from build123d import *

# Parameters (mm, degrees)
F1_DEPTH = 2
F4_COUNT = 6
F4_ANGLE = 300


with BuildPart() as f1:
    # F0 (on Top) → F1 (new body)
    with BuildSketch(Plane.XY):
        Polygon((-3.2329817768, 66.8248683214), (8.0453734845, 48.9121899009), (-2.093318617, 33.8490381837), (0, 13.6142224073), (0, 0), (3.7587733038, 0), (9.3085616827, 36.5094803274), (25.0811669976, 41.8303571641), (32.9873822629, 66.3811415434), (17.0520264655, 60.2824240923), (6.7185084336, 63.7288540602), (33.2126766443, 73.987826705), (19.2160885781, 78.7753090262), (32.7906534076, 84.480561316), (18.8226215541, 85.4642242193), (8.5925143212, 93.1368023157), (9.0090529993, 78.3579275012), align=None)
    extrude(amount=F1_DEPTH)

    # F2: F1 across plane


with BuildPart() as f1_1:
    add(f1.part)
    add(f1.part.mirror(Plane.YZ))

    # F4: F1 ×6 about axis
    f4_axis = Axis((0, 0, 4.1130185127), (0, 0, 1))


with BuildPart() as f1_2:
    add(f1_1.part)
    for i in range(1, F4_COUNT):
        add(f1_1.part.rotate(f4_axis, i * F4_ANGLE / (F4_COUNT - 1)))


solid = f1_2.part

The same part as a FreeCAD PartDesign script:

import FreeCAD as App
import Part
import Sketcher

doc = App.newDocument("Part")
body = doc.addObject("PartDesign::Body", "Body")

# Sketch on XY plane
sketch1 = doc.addObject("Sketcher::SketchObject", "Sketch")
body.addObject(sketch1)
sketch1.AttachmentSupport = (doc.XY_Plane, [""])
sketch1.MapMode = "FlatFace"
sketch1.addGeometry(Part.LineSegment(App.Vector(-3.2, 66.8, 0), App.Vector(8, 48.9, 0)), False)
sketch1.addGeometry(Part.LineSegment(App.Vector(8, 48.9, 0), App.Vector(-2.1, 33.8, 0)), False)
sketch1.addGeometry(Part.LineSegment(App.Vector(-2.1, 33.8, 0), App.Vector(0, 13.6, 0)), False)
sketch1.addGeometry(Part.LineSegment(App.Vector(0, 13.6, 0), App.Vector(0, 0, 0)), False)
sketch1.addGeometry(Part.LineSegment(App.Vector(0, 0, 0), App.Vector(3.8, 0, 0)), False)
sketch1.addGeometry(Part.LineSegment(App.Vector(3.8, 0, 0), App.Vector(9.3, 36.5, 0)), False)
sketch1.addGeometry(Part.LineSegment(App.Vector(9.3, 36.5, 0), App.Vector(25.1, 41.8, 0)), False)
sketch1.addGeometry(Part.LineSegment(App.Vector(25.1, 41.8, 0), App.Vector(33, 66.4, 0)), False)
sketch1.addGeometry(Part.LineSegment(App.Vector(33, 66.4, 0), App.Vector(17.1, 60.3, 0)), False)
sketch1.addGeometry(Part.LineSegment(App.Vector(17.1, 60.3, 0), App.Vector(6.7, 63.7, 0)), False)
sketch1.addGeometry(Part.LineSegment(App.Vector(6.7, 63.7, 0), App.Vector(33.2, 74, 0)), False)
sketch1.addGeometry(Part.LineSegment(App.Vector(33.2, 74, 0), App.Vector(19.2, 78.8, 0)), False)
sketch1.addGeometry(Part.LineSegment(App.Vector(19.2, 78.8, 0), App.Vector(32.8, 84.5, 0)), False)
sketch1.addGeometry(Part.LineSegment(App.Vector(32.8, 84.5, 0), App.Vector(18.8, 85.5, 0)), False)
sketch1.addGeometry(Part.LineSegment(App.Vector(18.8, 85.5, 0), App.Vector(8.6, 93.1, 0)), False)
sketch1.addGeometry(Part.LineSegment(App.Vector(8.6, 93.1, 0), App.Vector(9, 78.4, 0)), False)
sketch1.addGeometry(Part.LineSegment(App.Vector(9, 78.4, 0), App.Vector(-3.2, 66.8, 0)), False)
sketch1.addConstraint(Sketcher.Constraint("Coincident", 0, 2, 1, 1))
sketch1.addConstraint(Sketcher.Constraint("Coincident", 1, 2, 2, 1))
sketch1.addConstraint(Sketcher.Constraint("Coincident", 2, 2, 3, 1))
sketch1.addConstraint(Sketcher.Constraint("Coincident", 3, 2, 4, 1))
sketch1.addConstraint(Sketcher.Constraint("Coincident", 4, 2, 5, 1))
sketch1.addConstraint(Sketcher.Constraint("Coincident", 5, 2, 6, 1))
sketch1.addConstraint(Sketcher.Constraint("Coincident", 6, 2, 7, 1))
sketch1.addConstraint(Sketcher.Constraint("Coincident", 7, 2, 8, 1))
sketch1.addConstraint(Sketcher.Constraint("Coincident", 8, 2, 9, 1))
sketch1.addConstraint(Sketcher.Constraint("Coincident", 9, 2, 10, 1))
sketch1.addConstraint(Sketcher.Constraint("Coincident", 10, 2, 11, 1))
sketch1.addConstraint(Sketcher.Constraint("Coincident", 11, 2, 12, 1))
sketch1.addConstraint(Sketcher.Constraint("Coincident", 12, 2, 13, 1))
sketch1.addConstraint(Sketcher.Constraint("Coincident", 13, 2, 14, 1))
sketch1.addConstraint(Sketcher.Constraint("Coincident", 14, 2, 15, 1))
sketch1.addConstraint(Sketcher.Constraint("Coincident", 15, 2, 16, 1))
sketch1.addConstraint(Sketcher.Constraint("Coincident", 16, 2, 0, 1))
sketch1.addConstraint(Sketcher.Constraint("Vertical", 3))
sketch1.addConstraint(Sketcher.Constraint("Horizontal", 4))
sketch1.addConstraint(Sketcher.Constraint("Coincident", 3, 2, -1, 1))
sketch1.addConstraint(Sketcher.Constraint("DistanceX", 4, 2, 0, 2, 4.2866))
sketch1.addConstraint(Sketcher.Constraint("DistanceX", 1, 2, 7, 2, 35.080701))
sketch1.addConstraint(Sketcher.Constraint("Distance", 5, 36.928882))
sketch1.addConstraint(Sketcher.Constraint("Distance", 8, 17.06253))
sketch1.addConstraint(Sketcher.Constraint("DistanceX", 4, 1, 4, 2, 3.758773))
sketch1.addConstraint(Sketcher.Constraint("DistanceY", 3, 2, 3, 1, 13.614222))
sketch1.addConstraint(Sketcher.Constraint("DistanceY", -1, 1, 0, 2, 48.91219))
sketch1.addConstraint(Sketcher.Constraint("DistanceX", 1, 2, -1, 1, 2.093319))
sketch1.addConstraint(Sketcher.Constraint("DistanceY", -1, 1, 1, 2, 33.849038))
sketch1.addConstraint(Sketcher.Constraint("DistanceX", -1, 1, 5, 2, 9.308562))
sketch1.addConstraint(Sketcher.Constraint("DistanceY", -1, 1, 7, 2, 66.381142))
sketch1.addConstraint(Sketcher.Constraint("DistanceX", -1, 1, 9, 2, 6.718508))
sketch1.addConstraint(Sketcher.Constraint("DistanceX", -1, 1, 11, 2, 19.216089))
sketch1.addConstraint(Sketcher.Constraint("DistanceY", -1, 1, 11, 2, 78.775309))
sketch1.addConstraint(Sketcher.Constraint("DistanceY", -1, 1, 12, 2, 84.480561))
sketch1.addConstraint(Sketcher.Constraint("DistanceX", -1, 1, 13, 2, 18.822622))
sketch1.addConstraint(Sketcher.Constraint("DistanceX", 16, 2, -1, 1, 3.232982))
sketch1.addConstraint(Sketcher.Constraint("DistanceY", -1, 1, 16, 2, 66.824868))
sketch1.addConstraint(Sketcher.Constraint("DistanceY", 1, 2, 6, 2, 7.981319))
sketch1.addConstraint(Sketcher.Constraint("DistanceX", 8, 2, 6, 2, 8.029141))
sketch1.addConstraint(Sketcher.Constraint("DistanceX", 9, 2, 8, 2, 10.333518))
sketch1.addConstraint(Sketcher.Constraint("DistanceY", 8, 2, 9, 2, 3.44643))
sketch1.addConstraint(Sketcher.Constraint("DistanceX", 8, 2, 10, 2, 16.16065))
sketch1.addConstraint(Sketcher.Constraint("DistanceY", 6, 2, 10, 2, 32.15747))
sketch1.addConstraint(Sketcher.Constraint("DistanceX", 12, 2, 7, 2, 0.196729))
sketch1.addConstraint(Sketcher.Constraint("DistanceY", 9, 2, 13, 2, 21.73537))
sketch1.addConstraint(Sketcher.Constraint("DistanceY", 13, 2, 14, 2, 7.672578))
sketch1.addConstraint(Sketcher.Constraint("DistanceX", 14, 2, 12, 2, 24.198139))
sketch1.addConstraint(Sketcher.Constraint("DistanceY", 15, 2, 11, 2, 0.417382))
sketch1.addConstraint(Sketcher.Constraint("DistanceX", 15, 2, 13, 2, 9.813569))
pad1 = doc.addObject("PartDesign::Pad", "Pad")
body.addObject(pad1)
pad1.Profile = sketch1
pad1.Length = 2
body2 = doc.addObject("PartDesign::Body", "Body001")
doc.recompute()

body2.BaseFeature = body
doc.recompute()

mirroring = doc.addObject("Part::Mirroring", "Mirroring")
mirroring.Source = body
mirroring.Base = App.Vector(0, 0, 0)
mirroring.Normal = App.Vector(1, 0, 0)
body3 = doc.addObject("PartDesign::Body", "Body002")
body3.BaseFeature = mirroring
boolean = doc.addObject("PartDesign::Boolean", "Boolean")
body2.addObject(boolean)
boolean.Type = "Fuse"
boolean.addObjects([body3])
doc.recompute()
body4 = doc.addObject("PartDesign::Body", "Body003")
doc.recompute()

body4.BaseFeature = body2
doc.recompute()

body5 = doc.addObject("PartDesign::Body", "Body004")
body5.BaseFeature = body2
body5.Placement = App.Placement(App.Vector(0, 0, 0), App.Rotation(App.Vector(0, 0, 1), 60))
boolean2 = doc.addObject("PartDesign::Boolean", "Boolean001")
body4.addObject(boolean2)
boolean2.Type = "Fuse"
boolean2.addObjects([body5])
doc.recompute()

body6 = doc.addObject("PartDesign::Body", "Body005")
body6.BaseFeature = body2
body6.Placement = App.Placement(App.Vector(0, 0, 0), App.Rotation(App.Vector(0, 0, 1), 120))
boolean3 = doc.addObject("PartDesign::Boolean", "Boolean002")
body4.addObject(boolean3)
boolean3.Type = "Fuse"
boolean3.addObjects([body6])
doc.recompute()

body7 = doc.addObject("PartDesign::Body", "Body006")
body7.BaseFeature = body2
body7.Placement = App.Placement(App.Vector(0, 0, 0), App.Rotation(App.Vector(0, 0, 1), 180))
boolean4 = doc.addObject("PartDesign::Boolean", "Boolean003")
body4.addObject(boolean4)
boolean4.Type = "Fuse"
boolean4.addObjects([body7])
doc.recompute()

body8 = doc.addObject("PartDesign::Body", "Body007")
body8.BaseFeature = body2
body8.Placement = App.Placement(App.Vector(0, 0, 0), App.Rotation(App.Vector(0, 0, 1), 240))
boolean5 = doc.addObject("PartDesign::Boolean", "Boolean004")
body4.addObject(boolean5)
boolean5.Type = "Fuse"
boolean5.addObjects([body8])
doc.recompute()

body2.Placement = App.Placement(App.Vector(0, 0, 0), App.Rotation(App.Vector(0, 0, 1), 300))
boolean6 = doc.addObject("PartDesign::Boolean", "Boolean005")
body4.addObject(boolean6)
boolean6.Type = "Fuse"
boolean6.addObjects([body2])
mirroring.Visibility = False

doc.recompute()
